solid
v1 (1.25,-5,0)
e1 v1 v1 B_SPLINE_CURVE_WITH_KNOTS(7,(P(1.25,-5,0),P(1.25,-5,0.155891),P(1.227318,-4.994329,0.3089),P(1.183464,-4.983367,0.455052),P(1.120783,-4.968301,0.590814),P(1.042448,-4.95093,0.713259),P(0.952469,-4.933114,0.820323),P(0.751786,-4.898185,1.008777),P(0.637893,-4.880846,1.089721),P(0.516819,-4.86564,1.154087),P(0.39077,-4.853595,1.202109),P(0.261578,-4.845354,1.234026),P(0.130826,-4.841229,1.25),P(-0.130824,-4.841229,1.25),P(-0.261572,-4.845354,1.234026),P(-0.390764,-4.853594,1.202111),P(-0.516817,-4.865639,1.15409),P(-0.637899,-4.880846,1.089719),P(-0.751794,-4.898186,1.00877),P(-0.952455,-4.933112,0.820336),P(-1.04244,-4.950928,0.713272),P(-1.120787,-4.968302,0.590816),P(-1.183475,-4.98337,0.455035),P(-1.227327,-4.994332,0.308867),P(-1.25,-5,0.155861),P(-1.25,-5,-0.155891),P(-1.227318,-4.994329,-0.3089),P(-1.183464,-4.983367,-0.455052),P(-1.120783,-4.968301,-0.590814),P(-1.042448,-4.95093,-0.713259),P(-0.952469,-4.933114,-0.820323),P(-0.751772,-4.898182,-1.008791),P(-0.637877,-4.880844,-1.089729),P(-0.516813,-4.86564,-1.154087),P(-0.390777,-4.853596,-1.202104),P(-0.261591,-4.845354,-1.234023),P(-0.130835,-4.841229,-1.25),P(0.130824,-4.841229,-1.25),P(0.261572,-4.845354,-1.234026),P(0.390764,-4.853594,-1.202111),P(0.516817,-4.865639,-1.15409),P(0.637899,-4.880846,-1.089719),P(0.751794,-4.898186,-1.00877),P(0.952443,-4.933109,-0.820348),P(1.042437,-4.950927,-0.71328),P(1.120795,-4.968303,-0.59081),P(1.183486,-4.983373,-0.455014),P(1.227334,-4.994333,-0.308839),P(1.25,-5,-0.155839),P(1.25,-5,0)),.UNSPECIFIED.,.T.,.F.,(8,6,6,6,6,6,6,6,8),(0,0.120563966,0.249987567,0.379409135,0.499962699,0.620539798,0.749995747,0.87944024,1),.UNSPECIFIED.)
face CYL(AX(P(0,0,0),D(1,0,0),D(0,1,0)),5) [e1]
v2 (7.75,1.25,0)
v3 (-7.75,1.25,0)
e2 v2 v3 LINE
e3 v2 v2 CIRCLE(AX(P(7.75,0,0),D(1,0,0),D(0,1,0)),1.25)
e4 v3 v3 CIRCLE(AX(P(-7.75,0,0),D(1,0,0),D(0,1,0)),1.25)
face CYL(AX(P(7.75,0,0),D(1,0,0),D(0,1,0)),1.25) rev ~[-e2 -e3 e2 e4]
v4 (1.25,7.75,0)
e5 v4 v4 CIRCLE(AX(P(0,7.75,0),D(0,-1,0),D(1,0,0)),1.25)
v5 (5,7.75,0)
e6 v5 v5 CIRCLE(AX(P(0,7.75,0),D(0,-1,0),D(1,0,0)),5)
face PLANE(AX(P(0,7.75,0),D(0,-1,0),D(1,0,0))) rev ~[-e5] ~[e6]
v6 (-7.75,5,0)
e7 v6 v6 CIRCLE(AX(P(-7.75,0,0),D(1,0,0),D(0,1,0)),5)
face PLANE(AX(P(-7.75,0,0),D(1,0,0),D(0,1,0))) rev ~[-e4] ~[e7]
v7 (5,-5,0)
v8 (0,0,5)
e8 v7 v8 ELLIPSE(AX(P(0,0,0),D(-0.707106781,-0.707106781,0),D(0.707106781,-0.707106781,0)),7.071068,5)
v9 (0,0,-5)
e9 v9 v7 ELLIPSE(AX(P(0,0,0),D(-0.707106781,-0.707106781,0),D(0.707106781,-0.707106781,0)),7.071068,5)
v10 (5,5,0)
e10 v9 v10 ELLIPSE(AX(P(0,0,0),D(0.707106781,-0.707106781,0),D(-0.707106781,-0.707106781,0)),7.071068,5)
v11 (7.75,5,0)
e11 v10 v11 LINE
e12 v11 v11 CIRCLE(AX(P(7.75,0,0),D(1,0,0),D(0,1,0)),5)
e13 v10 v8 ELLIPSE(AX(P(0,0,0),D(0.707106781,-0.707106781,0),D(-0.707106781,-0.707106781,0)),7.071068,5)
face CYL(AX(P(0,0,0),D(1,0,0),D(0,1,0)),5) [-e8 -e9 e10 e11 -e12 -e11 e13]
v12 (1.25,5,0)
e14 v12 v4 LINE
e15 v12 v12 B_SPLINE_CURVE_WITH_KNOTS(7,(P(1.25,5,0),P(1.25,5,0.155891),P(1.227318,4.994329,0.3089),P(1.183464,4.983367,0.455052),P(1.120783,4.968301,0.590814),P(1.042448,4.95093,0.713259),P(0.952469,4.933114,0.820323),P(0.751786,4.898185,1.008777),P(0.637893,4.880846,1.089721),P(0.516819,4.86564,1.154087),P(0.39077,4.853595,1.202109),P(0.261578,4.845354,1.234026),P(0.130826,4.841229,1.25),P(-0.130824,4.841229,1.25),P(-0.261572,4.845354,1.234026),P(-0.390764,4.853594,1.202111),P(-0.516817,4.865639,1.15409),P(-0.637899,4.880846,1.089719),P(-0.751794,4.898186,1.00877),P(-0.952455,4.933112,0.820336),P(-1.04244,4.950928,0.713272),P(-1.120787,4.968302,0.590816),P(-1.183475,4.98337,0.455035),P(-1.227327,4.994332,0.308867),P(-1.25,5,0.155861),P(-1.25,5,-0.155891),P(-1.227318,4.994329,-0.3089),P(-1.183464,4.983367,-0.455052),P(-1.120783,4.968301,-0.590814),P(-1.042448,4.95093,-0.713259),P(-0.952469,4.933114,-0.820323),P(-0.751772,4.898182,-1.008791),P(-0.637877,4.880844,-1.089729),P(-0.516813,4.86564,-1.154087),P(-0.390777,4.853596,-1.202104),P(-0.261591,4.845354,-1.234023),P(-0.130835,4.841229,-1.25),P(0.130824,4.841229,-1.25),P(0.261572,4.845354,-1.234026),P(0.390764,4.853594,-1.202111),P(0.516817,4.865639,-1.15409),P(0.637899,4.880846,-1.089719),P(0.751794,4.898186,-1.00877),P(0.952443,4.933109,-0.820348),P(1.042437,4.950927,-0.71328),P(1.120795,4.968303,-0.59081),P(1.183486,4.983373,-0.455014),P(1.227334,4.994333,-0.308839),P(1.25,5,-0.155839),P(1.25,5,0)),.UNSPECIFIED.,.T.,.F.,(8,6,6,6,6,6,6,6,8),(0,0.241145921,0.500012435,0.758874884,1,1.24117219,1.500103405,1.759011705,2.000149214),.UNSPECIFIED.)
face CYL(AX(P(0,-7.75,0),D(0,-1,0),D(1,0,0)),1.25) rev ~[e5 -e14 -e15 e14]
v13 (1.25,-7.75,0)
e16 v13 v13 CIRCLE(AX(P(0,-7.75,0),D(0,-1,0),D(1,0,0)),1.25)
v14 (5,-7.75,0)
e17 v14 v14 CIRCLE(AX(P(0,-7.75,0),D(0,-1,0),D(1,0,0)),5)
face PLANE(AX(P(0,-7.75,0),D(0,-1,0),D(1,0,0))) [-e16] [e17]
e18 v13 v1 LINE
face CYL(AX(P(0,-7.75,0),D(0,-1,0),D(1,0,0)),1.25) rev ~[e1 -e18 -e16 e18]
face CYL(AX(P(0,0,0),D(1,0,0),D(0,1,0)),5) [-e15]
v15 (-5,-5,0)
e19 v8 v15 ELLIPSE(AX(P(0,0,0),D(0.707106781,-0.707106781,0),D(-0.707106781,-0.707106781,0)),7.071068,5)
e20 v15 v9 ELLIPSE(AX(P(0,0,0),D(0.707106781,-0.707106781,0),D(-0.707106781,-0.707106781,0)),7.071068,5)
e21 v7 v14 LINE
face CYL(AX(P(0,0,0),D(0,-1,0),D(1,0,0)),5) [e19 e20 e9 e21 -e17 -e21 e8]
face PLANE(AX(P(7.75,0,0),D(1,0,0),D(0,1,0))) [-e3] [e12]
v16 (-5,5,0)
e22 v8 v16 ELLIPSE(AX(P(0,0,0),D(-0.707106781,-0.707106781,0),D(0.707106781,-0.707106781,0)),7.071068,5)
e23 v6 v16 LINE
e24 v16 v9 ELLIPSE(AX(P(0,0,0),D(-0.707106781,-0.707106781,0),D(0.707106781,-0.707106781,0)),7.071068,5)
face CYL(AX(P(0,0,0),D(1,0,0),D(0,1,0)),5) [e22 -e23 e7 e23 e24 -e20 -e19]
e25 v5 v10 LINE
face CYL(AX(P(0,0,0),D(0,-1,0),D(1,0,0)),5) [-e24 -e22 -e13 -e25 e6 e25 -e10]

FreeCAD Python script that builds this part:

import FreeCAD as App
import Part
import Sketcher
from FreeCAD import Vector
Q = App.Units.Quantity

doc = App.newDocument("Part")
body = doc.addObject("PartDesign::Body", "Body")

sketch1 = body.newObject("Sketcher::SketchObject", "Sketch")
sketch1.AttachmentSupport = (doc.getObject("XZ_Plane"), [""])
sketch1.MapMode = "FlatFace"
sketch1.addGeometry(Part.Circle(Vector(0, 0, 0), Vector(0, 0, 1), 5), False)
sketch1.addConstraint([
    Sketcher.Constraint("Coincident", 0, 3, -1, 1),
    Sketcher.Constraint("Diameter", 0, Q("10 mm")),
])
pad1 = body.newObject("PartDesign::Pad", "Pad")
pad1.Profile = sketch1
pad1.Length = 15.5
pad1.Midplane = True

sketch2 = body.newObject("Sketcher::SketchObject", "Sketch001")
sketch2.AttachmentSupport = (doc.getObject("XZ_Plane"), [""])
sketch2.MapMode = "FlatFace"
sketch2.AttachmentOffset = App.Placement(Vector(0, 0, 7.75), App.Rotation())
sketch2.addGeometry(Part.Circle(Vector(0, 0, 0), Vector(0, 0, 1), 1.25), False)
sketch2.addConstraint([
    Sketcher.Constraint("Coincident", 0, 3, -1, 1),
    Sketcher.Constraint("Diameter", 0, Q("2.5 mm")),
])
pocket1 = body.newObject("PartDesign::Pocket", "Pocket")
pocket1.Profile = sketch2
pocket1.Length = 25

sketch3 = body.newObject("Sketcher::SketchObject", "Sketch002")
sketch3.AttachmentSupport = (doc.getObject("YZ_Plane"), [""])
sketch3.MapMode = "FlatFace"
sketch3.addGeometry(Part.Circle(Vector(0, 0, 0), Vector(0, 0, 1), 5), False)
sketch3.addConstraint([
    Sketcher.Constraint("Coincident", 0, 3, -1, 1),
    Sketcher.Constraint("Diameter", 0, Q("10 mm")),
])
pad2 = body.newObject("PartDesign::Pad", "Pad001")
pad2.Profile = sketch3
pad2.Length = 15.5
pad2.Midplane = True

sketch4 = body.newObject("Sketcher::SketchObject", "Sketch003")
sketch4.AttachmentSupport = (doc.getObject("YZ_Plane"), [""])
sketch4.MapMode = "FlatFace"
sketch4.AttachmentOffset = App.Placement(Vector(0, 0, 7.75), App.Rotation())
sketch4.addGeometry(Part.Circle(Vector(0, 0, 0), Vector(0, 0, 1), 1.25), False)
sketch4.addConstraint([
    Sketcher.Constraint("Coincident", 0, 3, -1, 1),
    Sketcher.Constraint("Diameter", 0, Q("2.5 mm")),
])
pocket2 = body.newObject("PartDesign::Pocket", "Pocket001")
pocket2.Profile = sketch4
pocket2.Length = 25

doc.recompute()
